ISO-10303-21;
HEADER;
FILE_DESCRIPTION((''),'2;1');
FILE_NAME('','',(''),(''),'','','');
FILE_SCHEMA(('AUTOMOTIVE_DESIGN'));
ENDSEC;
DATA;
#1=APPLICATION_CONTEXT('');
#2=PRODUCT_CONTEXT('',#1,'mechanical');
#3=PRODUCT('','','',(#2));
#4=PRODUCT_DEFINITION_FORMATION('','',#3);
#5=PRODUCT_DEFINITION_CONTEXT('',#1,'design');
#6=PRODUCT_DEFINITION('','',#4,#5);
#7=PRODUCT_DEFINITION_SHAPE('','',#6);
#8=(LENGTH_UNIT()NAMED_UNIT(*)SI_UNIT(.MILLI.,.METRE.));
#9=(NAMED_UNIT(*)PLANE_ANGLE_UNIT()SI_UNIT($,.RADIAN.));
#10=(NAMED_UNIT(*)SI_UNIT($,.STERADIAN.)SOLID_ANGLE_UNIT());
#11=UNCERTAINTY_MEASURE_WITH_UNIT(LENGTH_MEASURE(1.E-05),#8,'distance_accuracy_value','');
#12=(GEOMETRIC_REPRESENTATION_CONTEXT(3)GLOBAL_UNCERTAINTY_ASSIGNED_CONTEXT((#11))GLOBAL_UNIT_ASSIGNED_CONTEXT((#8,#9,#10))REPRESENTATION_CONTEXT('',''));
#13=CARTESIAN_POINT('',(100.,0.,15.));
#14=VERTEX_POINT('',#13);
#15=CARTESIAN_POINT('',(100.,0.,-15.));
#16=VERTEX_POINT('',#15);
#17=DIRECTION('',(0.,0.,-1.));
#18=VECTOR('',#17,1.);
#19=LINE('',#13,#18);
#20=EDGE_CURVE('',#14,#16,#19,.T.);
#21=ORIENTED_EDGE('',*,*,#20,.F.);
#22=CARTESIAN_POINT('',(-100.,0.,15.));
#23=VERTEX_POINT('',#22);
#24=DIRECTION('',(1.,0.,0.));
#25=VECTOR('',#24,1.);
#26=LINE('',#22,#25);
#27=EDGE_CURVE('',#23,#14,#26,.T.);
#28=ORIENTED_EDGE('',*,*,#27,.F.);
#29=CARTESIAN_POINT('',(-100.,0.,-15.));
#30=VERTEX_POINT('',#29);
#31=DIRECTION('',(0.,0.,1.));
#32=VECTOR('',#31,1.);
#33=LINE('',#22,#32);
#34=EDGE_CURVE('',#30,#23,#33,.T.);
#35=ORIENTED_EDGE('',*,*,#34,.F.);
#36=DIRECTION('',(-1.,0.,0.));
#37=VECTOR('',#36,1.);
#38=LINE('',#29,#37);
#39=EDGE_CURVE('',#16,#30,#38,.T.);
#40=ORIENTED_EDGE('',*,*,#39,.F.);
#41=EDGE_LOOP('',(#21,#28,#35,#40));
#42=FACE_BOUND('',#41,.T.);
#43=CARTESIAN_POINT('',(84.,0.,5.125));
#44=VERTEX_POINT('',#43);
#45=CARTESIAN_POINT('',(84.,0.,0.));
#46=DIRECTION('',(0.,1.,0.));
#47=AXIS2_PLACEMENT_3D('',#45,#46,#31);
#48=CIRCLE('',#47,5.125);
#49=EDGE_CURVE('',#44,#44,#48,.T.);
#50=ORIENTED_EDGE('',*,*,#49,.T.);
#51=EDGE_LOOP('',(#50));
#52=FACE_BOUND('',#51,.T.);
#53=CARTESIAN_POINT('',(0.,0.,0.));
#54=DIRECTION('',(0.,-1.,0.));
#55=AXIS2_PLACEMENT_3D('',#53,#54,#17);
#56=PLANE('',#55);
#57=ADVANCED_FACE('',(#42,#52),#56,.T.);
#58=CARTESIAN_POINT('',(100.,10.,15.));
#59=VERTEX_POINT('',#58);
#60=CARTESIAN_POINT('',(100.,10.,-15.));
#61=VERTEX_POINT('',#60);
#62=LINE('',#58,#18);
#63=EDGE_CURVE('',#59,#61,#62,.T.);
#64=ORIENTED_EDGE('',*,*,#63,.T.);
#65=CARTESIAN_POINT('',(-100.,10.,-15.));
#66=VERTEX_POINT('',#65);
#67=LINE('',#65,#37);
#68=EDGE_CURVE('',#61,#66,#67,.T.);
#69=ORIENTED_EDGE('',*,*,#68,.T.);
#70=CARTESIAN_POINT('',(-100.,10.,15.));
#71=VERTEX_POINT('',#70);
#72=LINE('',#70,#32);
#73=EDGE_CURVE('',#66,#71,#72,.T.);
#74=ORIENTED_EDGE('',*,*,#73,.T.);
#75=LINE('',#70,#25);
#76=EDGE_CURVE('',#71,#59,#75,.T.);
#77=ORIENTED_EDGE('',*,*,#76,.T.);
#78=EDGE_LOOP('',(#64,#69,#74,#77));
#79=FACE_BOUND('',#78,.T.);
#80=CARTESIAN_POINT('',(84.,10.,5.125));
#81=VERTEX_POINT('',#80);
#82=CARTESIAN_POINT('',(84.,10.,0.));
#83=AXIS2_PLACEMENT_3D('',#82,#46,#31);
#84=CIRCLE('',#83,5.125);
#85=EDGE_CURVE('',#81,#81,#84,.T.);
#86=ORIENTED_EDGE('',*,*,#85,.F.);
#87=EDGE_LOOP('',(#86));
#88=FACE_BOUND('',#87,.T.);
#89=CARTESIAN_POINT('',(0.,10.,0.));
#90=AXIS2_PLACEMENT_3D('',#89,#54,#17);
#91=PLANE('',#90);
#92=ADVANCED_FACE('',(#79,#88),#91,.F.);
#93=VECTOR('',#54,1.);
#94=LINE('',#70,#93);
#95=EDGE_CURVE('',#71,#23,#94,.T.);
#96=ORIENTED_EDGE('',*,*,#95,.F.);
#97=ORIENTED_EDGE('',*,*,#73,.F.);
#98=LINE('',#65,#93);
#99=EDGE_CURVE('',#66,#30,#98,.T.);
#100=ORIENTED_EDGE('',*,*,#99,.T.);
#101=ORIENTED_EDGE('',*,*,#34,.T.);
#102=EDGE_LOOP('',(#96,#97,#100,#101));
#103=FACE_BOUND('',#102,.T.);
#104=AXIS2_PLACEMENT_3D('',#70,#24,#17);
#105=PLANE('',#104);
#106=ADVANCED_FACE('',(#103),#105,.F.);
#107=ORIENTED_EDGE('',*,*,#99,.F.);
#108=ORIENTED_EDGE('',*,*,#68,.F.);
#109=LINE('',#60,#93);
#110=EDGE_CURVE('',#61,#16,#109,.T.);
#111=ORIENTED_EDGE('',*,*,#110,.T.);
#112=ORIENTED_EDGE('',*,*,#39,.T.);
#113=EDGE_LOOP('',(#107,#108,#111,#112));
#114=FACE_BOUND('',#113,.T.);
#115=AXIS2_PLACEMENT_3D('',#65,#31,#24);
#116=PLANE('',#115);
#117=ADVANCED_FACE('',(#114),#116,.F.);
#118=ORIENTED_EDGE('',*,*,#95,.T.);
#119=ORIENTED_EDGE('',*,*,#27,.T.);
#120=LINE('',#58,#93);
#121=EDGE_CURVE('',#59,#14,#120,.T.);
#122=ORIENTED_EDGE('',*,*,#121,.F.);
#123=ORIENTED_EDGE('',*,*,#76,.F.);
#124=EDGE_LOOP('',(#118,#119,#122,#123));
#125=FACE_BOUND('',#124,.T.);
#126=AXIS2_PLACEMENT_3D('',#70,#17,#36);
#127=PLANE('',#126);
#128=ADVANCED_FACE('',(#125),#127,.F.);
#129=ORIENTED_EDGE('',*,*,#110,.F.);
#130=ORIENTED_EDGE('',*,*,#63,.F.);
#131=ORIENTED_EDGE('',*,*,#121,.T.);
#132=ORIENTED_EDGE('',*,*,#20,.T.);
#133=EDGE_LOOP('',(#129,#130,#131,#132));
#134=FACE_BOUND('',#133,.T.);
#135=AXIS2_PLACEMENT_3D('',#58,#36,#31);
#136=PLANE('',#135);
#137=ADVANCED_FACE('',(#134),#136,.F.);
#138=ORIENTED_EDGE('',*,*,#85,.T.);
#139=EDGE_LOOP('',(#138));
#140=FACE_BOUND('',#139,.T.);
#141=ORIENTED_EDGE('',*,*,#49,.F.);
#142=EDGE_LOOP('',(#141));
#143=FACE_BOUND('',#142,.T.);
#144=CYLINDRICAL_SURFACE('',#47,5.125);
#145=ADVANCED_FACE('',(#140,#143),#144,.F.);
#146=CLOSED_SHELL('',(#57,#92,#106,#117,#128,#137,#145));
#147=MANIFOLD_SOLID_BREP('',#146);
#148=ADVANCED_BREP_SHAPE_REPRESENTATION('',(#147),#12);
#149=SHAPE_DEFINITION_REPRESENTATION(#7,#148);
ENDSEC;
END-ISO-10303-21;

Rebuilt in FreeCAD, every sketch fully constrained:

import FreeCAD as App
import Part
import Sketcher

V = App.Vector

doc = App.newDocument("Part")
body = doc.addObject("PartDesign::Body", "Body")

# Sketch on XZ plane
sketch1 = doc.addObject("Sketcher::SketchObject", "Sketch")
body.addObject(sketch1)
sketch1.AttachmentSupport = (doc.XZ_Plane, [""])
sketch1.MapMode = "FlatFace"
sketch1.addGeometry(Part.LineSegment(V(-100, -15, 0), V(-100, 15, 0)), False)
sketch1.addGeometry(Part.LineSegment(V(-100, 15, 0), V(100, 15, 0)), False)
sketch1.addGeometry(Part.LineSegment(V(100, 15, 0), V(100, -15, 0)), False)
sketch1.addGeometry(Part.LineSegment(V(100, -15, 0), V(-100, -15, 0)), False)
sketch1.addConstraint(Sketcher.Constraint("Coincident", 0, 2, 1, 1))
sketch1.addConstraint(Sketcher.Constraint("Coincident", 1, 2, 2, 1))
sketch1.addConstraint(Sketcher.Constraint("Coincident", 2, 2, 3, 1))
sketch1.addConstraint(Sketcher.Constraint("Coincident", 3, 2, 0, 1))
sketch1.addConstraint(Sketcher.Constraint("Vertical", 0))
sketch1.addConstraint(Sketcher.Constraint("Horizontal", 1))
sketch1.addConstraint(Sketcher.Constraint("Vertical", 2))
sketch1.addConstraint(Sketcher.Constraint("Horizontal", 3))
sketch1.addConstraint(Sketcher.Constraint("Symmetric", 0, 2, 2, 2, -1, 1))
sketch1.addConstraint(Sketcher.Constraint("DistanceX", 1, 1, 1, 2, 200.0))
sketch1.addConstraint(Sketcher.Constraint("DistanceY", 0, 1, 0, 2, 30.0))
pad1 = doc.addObject("PartDesign::Pad", "Pad")
body.addObject(pad1)
pad1.Profile = sketch1
pad1.Length = 10
pad1.Reversed = True

# Sketch on XZ plane
sketch2 = doc.addObject("Sketcher::SketchObject", "Sketch001")
body.addObject(sketch2)
sketch2.AttachmentSupport = (doc.XZ_Plane, [""])
sketch2.MapMode = "FlatFace"
sketch2.AttachmentOffset = App.Placement(V(0, 0, -10), App.Rotation())
sketch2.addGeometry(Part.Circle(V(84, 0, 0), V(0, 0, 1), 5.125), False)
sketch2.addConstraint(Sketcher.Constraint("PointOnObject", 0, 3, -1))
sketch2.addConstraint(Sketcher.Constraint("Diameter", 0, 10.25))
sketch2.addConstraint(Sketcher.Constraint("DistanceX", -1, 1, 0, 3, 84.0))
pocket1 = doc.addObject("PartDesign::Pocket", "Pocket")
body.addObject(pocket1)
pocket1.Profile = sketch2
pocket1.Type = "ThroughAll"
pocket1.Reversed = True

doc.recompute()
